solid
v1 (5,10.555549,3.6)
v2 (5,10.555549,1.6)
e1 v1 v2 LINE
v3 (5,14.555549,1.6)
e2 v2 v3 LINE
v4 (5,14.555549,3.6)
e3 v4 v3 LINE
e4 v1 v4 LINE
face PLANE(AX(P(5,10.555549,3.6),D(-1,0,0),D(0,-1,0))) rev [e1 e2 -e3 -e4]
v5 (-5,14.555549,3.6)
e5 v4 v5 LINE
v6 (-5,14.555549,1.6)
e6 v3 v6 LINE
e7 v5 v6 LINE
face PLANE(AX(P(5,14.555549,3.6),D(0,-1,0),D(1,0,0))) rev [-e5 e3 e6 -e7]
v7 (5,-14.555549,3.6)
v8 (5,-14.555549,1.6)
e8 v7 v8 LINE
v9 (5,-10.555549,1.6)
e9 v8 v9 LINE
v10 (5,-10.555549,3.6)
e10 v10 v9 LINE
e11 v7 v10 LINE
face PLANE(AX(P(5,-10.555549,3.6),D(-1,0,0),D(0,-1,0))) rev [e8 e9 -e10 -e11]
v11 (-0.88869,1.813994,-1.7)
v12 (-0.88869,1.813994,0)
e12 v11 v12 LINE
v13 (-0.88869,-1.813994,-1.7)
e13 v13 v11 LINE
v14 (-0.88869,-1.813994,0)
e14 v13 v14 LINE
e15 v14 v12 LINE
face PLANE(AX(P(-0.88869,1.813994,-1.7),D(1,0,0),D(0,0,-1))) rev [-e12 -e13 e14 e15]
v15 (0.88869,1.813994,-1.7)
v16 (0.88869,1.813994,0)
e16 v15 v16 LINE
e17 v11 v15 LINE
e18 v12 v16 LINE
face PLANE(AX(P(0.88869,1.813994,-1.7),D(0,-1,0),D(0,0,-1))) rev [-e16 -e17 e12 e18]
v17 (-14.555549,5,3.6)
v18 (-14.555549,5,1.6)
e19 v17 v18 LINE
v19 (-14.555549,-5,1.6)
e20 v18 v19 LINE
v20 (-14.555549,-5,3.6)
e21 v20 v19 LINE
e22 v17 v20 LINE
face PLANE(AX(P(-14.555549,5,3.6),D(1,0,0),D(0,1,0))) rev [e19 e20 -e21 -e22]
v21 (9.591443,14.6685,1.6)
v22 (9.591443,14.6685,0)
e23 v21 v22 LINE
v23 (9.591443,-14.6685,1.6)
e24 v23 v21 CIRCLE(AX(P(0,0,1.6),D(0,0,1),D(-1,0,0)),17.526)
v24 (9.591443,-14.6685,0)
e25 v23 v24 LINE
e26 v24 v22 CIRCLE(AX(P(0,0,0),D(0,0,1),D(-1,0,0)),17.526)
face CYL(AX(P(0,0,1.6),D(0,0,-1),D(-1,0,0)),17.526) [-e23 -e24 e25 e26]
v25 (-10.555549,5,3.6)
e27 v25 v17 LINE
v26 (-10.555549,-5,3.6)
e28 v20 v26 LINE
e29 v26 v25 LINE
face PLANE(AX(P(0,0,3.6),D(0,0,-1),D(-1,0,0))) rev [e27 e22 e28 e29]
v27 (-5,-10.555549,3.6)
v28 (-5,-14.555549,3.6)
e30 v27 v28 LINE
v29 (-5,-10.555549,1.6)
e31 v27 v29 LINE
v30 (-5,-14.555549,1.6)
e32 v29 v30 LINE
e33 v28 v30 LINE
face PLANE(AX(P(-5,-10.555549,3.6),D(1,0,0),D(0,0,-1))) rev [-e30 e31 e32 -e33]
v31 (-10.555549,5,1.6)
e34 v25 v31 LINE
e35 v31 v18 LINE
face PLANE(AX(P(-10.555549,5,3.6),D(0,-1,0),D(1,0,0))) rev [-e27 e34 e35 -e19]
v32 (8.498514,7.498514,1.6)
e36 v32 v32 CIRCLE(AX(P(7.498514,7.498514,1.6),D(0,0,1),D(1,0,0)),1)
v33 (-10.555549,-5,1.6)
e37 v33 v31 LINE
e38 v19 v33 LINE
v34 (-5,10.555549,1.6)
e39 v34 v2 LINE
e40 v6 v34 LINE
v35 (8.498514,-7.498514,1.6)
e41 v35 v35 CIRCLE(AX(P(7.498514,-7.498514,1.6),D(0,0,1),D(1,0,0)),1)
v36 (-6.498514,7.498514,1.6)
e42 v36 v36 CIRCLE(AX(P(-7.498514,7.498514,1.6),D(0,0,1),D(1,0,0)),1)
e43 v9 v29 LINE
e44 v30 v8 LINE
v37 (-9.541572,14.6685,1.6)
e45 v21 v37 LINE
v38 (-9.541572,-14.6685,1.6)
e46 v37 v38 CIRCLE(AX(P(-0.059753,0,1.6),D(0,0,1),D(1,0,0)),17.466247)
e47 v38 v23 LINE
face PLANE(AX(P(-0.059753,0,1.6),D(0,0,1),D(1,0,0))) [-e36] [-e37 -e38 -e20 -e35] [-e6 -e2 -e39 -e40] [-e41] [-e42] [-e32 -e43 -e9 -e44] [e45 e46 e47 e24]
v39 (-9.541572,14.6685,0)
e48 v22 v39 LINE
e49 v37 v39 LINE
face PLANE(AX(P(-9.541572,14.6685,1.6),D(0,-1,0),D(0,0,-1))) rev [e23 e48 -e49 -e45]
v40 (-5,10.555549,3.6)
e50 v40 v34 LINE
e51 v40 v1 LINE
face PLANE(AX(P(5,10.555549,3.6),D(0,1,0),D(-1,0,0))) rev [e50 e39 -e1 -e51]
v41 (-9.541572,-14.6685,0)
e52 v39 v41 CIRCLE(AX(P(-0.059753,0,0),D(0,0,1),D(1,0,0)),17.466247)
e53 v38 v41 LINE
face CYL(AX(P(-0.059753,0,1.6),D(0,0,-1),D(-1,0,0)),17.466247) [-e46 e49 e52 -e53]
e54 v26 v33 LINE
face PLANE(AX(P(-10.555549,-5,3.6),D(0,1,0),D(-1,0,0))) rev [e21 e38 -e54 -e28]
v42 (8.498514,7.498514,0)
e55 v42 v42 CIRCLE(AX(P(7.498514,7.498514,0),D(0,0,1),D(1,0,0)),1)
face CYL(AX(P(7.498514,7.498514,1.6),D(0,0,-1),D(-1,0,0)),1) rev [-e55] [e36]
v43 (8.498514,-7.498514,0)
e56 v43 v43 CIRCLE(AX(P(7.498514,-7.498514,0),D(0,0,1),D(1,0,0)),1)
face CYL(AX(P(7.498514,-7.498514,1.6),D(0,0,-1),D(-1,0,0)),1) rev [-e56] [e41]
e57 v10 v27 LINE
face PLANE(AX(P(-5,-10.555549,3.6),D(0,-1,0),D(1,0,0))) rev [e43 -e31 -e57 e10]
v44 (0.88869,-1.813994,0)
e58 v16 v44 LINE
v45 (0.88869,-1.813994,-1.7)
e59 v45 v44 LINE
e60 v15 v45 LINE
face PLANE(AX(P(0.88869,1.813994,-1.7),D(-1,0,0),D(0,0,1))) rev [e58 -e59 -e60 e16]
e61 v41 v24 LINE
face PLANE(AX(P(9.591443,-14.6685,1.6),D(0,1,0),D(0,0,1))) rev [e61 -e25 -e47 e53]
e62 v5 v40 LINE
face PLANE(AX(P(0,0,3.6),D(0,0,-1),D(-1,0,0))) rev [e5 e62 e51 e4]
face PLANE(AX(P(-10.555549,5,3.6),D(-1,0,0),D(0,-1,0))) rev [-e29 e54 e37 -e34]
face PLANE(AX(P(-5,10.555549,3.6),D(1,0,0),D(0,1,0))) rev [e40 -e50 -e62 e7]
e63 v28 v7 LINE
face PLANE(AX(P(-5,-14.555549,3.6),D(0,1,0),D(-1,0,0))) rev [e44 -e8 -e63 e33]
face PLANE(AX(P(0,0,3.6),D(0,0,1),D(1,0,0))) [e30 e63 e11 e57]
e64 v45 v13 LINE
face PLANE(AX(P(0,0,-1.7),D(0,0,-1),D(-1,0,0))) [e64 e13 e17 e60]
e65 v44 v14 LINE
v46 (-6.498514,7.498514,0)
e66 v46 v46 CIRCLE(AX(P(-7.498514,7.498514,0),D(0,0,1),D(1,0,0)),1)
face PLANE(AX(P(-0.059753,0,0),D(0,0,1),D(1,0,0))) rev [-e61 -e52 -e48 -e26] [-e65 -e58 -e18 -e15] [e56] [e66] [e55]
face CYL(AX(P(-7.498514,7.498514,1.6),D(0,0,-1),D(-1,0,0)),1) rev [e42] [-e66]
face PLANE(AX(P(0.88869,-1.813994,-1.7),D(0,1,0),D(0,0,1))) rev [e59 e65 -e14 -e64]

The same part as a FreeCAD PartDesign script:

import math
import FreeCAD as App
import Part
import Sketcher

V = App.Vector


def add_polygon(sketch, points):
    """Adds a closed chain of lines whose ends are joined by coincident constraints."""
    first, n = sketch.GeometryCount, len(points)
    for a, b in zip(points, points[1:] + points[:1]):
        sketch.addGeometry(Part.LineSegment(App.Vector(*a, 0), App.Vector(*b, 0)), False)
    for i in range(n):
        sketch.addConstraint(Sketcher.Constraint("Coincident", first + i, 2, first + (i + 1) % n, 1))

doc = App.newDocument("Part")
body = doc.addObject("PartDesign::Body", "Body")

sketch1 = body.newObject("Sketcher::SketchObject", "Sketch")
sketch1.AttachmentSupport = (doc.getObject("XY_Plane"), [""])
sketch1.MapMode = "FlatFace"
sketch1.addGeometry([
    Part.LineSegment(V(9.6, 14.7, 0), V(-9.5, 14.7, 0)),
    Part.ArcOfCircle(Part.Circle(V(-0.1, 0, 0), V(0, 0, 1), 17.5), math.radians(123), math.radians(237)),
    Part.LineSegment(V(-9.5, -14.7, 0), V(9.6, -14.7, 0)),
    Part.ArcOfCircle(Part.Circle(V(0, 0, 0), V(0, 0, 1), 17.5), math.radians(-57), math.radians(57)),
    Part.Circle(V(7.5, -7.5, 0), V(0, 0, 1), 1),
    Part.Circle(V(7.5, 7.5, 0), V(0, 0, 1), 1),
    Part.Circle(V(-7.5, 7.5, 0), V(0, 0, 1), 1),
], False)
sketch1.addConstraint([
    Sketcher.Constraint("Coincident", 0, 2, 1, 1),
    Sketcher.Constraint("Coincident", 1, 2, 2, 1),
    Sketcher.Constraint("Coincident", 2, 2, 3, 1),
    Sketcher.Constraint("Coincident", 3, 2, 0, 1),
    Sketcher.Constraint("Horizontal", 0),
    Sketcher.Constraint("Horizontal", 2),
    Sketcher.Constraint("Coincident", 3, 3, -1, 1),
    Sketcher.Constraint("Equal", 4, 5),
    Sketcher.Constraint("Equal", 5, 6),
    Sketcher.Constraint("Symmetric", 4, 3, 6, 3, -1, 1),
    Sketcher.Constraint("Symmetric", 5, 3, 6, 3, -2),
    Sketcher.Constraint("Symmetric", 0, 2, 1, 2, -1),
    Sketcher.Constraint("Diameter", 4, 2.0),
    Sketcher.Constraint("Radius", 3, 17.526),
    Sketcher.Constraint("Radius", 1, 17.466247),
    Sketcher.Constraint("DistanceY", -1, 1, 0, 2, 14.6685),
    Sketcher.Constraint("DistanceX", 0, 2, 0, 1, 19.133015),
    Sketcher.Constraint("DistanceX", 6, 3, 1, 3, 7.43876),
    Sketcher.Constraint("DistanceY", 4, 3, -1, 1, 7.498514),
])
pad1 = body.newObject("PartDesign::Pad", "Pad")
pad1.Profile = sketch1
pad1.Length = 1.6

sketch2 = body.newObject("Sketcher::SketchObject", "Sketch001")
sketch2.AttachmentSupport = (doc.getObject("XY_Plane"), [""])
sketch2.MapMode = "FlatFace"
add_polygon(sketch2, [(0.9, 1.8), (0.9, -1.8), (-0.9, -1.8), (-0.9, 1.8)])
sketch2.addConstraint([
    Sketcher.Constraint("Vertical", 0),
    Sketcher.Constraint("Horizontal", 1),
    Sketcher.Constraint("Vertical", 2),
    Sketcher.Constraint("Horizontal", 3),
    Sketcher.Constraint("Symmetric", 0, 2, 2, 2, -1, 1),
    Sketcher.Constraint("DistanceX", 1, 2, 1, 1, 1.77738),
    Sketcher.Constraint("DistanceY", 0, 2, 0, 1, 3.627987),
])
pad2 = body.newObject("PartDesign::Pad", "Pad001")
pad2.Profile = sketch2
pad2.Length = 1.7
pad2.Reversed = True

sketch3 = body.newObject("Sketcher::SketchObject", "Sketch002")
sketch3.AttachmentSupport = (doc.getObject("XY_Plane"), [""])
sketch3.MapMode = "FlatFace"
sketch3.AttachmentOffset = App.Placement(V(0, 0, 1.6), App.Rotation())
add_polygon(sketch3, [(-14.6, 5), (-14.6, -5), (-10.6, -5), (-10.6, 5)])
add_polygon(sketch3, [(-5, -10.6), (-5, -14.6), (5, -14.6), (5, -10.6)])
add_polygon(sketch3, [(-5, 14.6), (-5, 10.6), (5, 10.6), (5, 14.6)])
sketch3.addConstraint([
    Sketcher.Constraint("Vertical", 0),
    Sketcher.Constraint("Horizontal", 1),
    Sketcher.Constraint("Vertical", 2),
    Sketcher.Constraint("Horizontal", 3),
    Sketcher.Constraint("Vertical", 4),
    Sketcher.Constraint("Horizontal", 5),
    Sketcher.Constraint("Vertical", 6),
    Sketcher.Constraint("Horizontal", 7),
    Sketcher.Constraint("Vertical", 8),
    Sketcher.Constraint("Horizontal", 9),
    Sketcher.Constraint("Vertical", 10),
    Sketcher.Constraint("Horizontal", 11),
    Sketcher.Constraint("Symmetric", 6, 2, 8, 2, -1, 1),
    Sketcher.Constraint("Symmetric", 4, 2, 10, 2, -1, 1),
    Sketcher.Constraint("Vertical", 7, 2, 8, 2),
    Sketcher.Constraint("Equal", 11, 0),
    Sketcher.Constraint("Equal", 3, 4),
    Sketcher.Constraint("DistanceX", 1, 1, 1, 2, 4.0),
    Sketcher.Constraint("DistanceX", 5, 1, 5, 2, 10.0),
    Sketcher.Constraint("DistanceY", 0, 2, -1, 1, 5.0),
    Sketcher.Constraint("DistanceY", 7, 2, 8, 2, 21.111098),
    Sketcher.Constraint("DistanceX", 0, 2, -1, 1, 14.555549),
])
pad3 = body.newObject("PartDesign::Pad", "Pad002")
pad3.Profile = sketch3
pad3.Length = 2

doc.recompute()
